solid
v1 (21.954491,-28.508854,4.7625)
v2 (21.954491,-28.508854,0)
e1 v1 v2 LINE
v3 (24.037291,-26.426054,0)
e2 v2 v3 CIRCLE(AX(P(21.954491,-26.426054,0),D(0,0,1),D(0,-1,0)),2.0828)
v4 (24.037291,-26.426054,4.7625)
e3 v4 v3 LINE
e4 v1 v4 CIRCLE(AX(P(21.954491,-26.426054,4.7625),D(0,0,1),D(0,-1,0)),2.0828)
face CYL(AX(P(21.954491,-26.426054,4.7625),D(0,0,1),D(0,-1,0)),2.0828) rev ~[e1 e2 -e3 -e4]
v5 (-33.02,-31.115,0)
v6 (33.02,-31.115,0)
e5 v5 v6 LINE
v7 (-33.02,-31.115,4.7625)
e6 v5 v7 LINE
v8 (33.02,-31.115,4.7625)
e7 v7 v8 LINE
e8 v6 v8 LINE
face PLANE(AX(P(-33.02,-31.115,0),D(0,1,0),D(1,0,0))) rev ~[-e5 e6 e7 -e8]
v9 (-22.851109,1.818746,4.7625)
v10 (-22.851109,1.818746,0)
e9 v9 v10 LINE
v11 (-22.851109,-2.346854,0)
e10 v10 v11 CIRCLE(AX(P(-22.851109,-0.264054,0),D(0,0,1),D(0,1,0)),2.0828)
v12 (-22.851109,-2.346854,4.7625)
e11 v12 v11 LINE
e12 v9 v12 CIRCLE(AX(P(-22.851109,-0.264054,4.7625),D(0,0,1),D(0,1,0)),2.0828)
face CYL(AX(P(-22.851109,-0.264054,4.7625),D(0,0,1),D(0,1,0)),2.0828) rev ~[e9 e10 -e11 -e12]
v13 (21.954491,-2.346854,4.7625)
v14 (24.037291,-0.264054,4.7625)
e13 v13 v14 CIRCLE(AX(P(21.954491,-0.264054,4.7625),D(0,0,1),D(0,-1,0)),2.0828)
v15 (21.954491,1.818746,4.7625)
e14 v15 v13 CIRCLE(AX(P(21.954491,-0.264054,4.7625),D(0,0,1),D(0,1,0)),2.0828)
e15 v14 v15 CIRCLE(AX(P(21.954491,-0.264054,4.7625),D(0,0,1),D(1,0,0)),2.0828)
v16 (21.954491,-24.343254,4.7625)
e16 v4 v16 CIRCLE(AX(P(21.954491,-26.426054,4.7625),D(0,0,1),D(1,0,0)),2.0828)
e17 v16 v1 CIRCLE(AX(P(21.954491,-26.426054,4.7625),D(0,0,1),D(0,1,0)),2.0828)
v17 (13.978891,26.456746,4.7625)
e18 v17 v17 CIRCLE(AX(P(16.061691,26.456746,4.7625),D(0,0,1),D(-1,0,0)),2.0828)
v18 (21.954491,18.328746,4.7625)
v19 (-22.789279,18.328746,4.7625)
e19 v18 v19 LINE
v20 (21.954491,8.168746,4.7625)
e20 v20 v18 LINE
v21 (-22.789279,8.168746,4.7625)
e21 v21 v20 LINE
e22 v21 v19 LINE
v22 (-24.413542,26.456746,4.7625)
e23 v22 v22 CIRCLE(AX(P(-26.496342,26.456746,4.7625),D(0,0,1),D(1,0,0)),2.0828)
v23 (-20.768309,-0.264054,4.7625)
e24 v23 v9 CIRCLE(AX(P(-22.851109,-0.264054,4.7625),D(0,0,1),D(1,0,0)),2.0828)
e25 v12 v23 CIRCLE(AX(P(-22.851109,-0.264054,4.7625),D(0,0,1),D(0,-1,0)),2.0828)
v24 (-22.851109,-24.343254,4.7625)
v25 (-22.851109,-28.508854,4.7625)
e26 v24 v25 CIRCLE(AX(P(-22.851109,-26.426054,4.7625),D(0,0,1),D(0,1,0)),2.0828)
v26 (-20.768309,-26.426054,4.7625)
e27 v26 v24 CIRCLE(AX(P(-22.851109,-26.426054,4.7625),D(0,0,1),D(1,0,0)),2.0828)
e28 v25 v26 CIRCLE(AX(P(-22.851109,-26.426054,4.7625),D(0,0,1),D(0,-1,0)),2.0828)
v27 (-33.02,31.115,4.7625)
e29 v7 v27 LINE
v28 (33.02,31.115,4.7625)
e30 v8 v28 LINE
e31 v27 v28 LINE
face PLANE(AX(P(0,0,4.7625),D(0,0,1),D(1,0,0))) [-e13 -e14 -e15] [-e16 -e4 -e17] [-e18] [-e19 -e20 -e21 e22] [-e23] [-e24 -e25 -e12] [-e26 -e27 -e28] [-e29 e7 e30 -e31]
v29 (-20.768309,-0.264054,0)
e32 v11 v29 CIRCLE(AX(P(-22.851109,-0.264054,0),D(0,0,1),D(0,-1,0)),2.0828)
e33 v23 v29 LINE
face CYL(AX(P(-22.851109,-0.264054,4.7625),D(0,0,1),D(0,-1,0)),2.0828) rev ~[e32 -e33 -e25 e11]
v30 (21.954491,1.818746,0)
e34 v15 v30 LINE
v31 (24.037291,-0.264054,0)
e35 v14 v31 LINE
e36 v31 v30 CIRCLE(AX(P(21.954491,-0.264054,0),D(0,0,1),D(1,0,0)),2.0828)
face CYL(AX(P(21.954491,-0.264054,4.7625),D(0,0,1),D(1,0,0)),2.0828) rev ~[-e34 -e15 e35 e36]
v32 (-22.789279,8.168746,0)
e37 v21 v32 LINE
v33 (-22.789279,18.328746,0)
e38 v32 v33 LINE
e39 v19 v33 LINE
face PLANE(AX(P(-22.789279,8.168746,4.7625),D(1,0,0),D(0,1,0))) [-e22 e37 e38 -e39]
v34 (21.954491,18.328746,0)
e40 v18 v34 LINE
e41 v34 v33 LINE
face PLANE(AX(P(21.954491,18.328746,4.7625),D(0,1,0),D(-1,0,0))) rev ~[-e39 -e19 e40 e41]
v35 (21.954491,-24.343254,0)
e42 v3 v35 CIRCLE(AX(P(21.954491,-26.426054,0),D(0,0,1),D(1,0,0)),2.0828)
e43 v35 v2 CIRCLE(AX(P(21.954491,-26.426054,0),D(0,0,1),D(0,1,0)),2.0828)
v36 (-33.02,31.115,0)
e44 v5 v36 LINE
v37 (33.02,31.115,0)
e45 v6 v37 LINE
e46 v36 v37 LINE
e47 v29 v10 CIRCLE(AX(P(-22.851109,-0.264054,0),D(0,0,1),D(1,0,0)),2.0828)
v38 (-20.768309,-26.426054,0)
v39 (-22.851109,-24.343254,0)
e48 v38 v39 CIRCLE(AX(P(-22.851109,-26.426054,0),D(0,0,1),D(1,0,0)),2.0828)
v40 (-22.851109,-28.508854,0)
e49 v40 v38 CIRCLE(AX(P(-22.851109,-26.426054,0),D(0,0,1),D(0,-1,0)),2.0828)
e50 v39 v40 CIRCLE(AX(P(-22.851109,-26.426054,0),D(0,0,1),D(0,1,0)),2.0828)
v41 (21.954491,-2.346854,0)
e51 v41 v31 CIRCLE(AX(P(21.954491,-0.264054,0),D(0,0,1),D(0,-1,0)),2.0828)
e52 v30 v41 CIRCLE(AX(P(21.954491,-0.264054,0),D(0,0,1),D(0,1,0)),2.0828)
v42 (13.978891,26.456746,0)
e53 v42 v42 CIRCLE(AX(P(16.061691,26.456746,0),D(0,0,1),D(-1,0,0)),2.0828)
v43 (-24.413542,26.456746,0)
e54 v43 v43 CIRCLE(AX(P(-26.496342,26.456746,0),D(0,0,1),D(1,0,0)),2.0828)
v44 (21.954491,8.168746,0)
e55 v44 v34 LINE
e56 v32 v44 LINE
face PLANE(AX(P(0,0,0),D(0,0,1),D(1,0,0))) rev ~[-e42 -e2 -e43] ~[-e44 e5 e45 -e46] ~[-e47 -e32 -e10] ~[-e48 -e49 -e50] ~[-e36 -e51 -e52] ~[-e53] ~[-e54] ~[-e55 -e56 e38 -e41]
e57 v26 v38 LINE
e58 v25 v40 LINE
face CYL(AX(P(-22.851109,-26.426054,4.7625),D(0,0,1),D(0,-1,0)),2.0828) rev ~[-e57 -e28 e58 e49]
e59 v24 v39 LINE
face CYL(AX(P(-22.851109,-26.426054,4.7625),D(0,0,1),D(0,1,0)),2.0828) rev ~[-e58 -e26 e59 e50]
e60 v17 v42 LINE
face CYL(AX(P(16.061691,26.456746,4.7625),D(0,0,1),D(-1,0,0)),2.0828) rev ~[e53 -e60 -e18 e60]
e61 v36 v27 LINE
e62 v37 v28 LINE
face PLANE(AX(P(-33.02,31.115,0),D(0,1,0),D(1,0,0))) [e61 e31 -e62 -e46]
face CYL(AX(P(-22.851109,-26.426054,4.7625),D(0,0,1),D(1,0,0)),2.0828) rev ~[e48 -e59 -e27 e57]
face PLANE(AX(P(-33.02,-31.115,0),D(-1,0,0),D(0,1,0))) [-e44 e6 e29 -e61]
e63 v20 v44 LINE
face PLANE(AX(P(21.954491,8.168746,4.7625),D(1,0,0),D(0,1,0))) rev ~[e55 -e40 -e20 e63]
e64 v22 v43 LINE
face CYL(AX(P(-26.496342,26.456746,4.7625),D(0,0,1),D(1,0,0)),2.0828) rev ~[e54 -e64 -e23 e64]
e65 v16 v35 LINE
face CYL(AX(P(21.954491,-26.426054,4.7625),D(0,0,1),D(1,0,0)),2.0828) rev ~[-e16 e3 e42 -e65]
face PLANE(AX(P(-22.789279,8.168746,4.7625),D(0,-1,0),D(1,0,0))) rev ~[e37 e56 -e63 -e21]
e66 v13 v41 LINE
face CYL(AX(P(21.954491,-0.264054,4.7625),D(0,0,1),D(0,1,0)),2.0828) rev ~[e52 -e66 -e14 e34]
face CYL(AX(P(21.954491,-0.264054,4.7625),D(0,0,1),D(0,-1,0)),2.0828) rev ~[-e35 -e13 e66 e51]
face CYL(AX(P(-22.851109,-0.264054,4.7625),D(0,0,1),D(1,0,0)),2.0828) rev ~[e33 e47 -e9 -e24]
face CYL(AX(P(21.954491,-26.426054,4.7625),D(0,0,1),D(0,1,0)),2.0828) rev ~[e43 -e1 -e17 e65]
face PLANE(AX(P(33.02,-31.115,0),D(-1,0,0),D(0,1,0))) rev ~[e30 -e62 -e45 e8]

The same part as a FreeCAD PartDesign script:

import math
import FreeCAD as App
import Part
import Sketcher
from FreeCAD import Vector
Q = App.Units.Quantity


def add_polygon(sketch, points):
    """Adds a closed chain of lines whose ends are joined by coincident constraints."""
    first, n = sketch.GeometryCount, len(points)
    for a, b in zip(points, points[1:] + points[:1]):
        sketch.addGeometry(Part.LineSegment(App.Vector(*a, 0), App.Vector(*b, 0)), False)
    for i in range(n):
        sketch.addConstraint(Sketcher.Constraint("Coincident", first + i, 2, first + (i + 1) % n, 1))

doc = App.newDocument("Part")
body = doc.addObject("PartDesign::Body", "Body")

sketch1 = body.newObject("Sketcher::SketchObject", "Sketch")
sketch1.AttachmentSupport = (doc.getObject("XY_Plane"), [""])
sketch1.MapMode = "FlatFace"
add_polygon(sketch1, [(-33, 31), (-33, -31), (33, -31), (33, 31)])
sketch1.addConstraint([
    Sketcher.Constraint("Vertical", 0),
    Sketcher.Constraint("Horizontal", 1),
    Sketcher.Constraint("Vertical", 2),
    Sketcher.Constraint("Horizontal", 3),
    Sketcher.Constraint("Symmetric", 0, 2, 2, 2, -1, 1),
    Sketcher.Constraint("DistanceX", 1, 1, 1, 2, Q("2.6 in")),
    Sketcher.Constraint("DistanceY", 0, 2, 0, 1, Q("2.45 in")),
])
pad1 = body.newObject("PartDesign::Pad", "Pad")
pad1.Profile = sketch1
pad1.Length = Q("0.1875 in")

sketch2 = body.newObject("Sketcher::SketchObject", "Sketch001")
sketch2.AttachmentSupport = (doc.getObject("XY_Plane"), [""])
sketch2.MapMode = "FlatFace"
sketch2.AttachmentOffset = App.Placement(Vector(0, 0, 0.1875 * 25.4), App.Rotation())
sketch2.addGeometry(Part.Circle(Vector(-26.5, 26.5, 0), Vector(0, 0, 1), 2.1), False)
sketch2.addGeometry(Part.Circle(Vector(16.1, 26.5, 0), Vector(0, 0, 1), 2.1), False)
sketch2.addGeometry(Part.ArcOfCircle(Part.Circle(Vector(22, -0.3, 0), Vector(0, 0, 1), 2.1), math.radians(0), math.radians(90)), False)
sketch2.addGeometry(Part.ArcOfCircle(Part.Circle(Vector(22, -0.3, 0), Vector(0, 0, 1), 2.1), math.radians(90), math.radians(270)), False)
sketch2.addGeometry(Part.ArcOfCircle(Part.Circle(Vector(22, -0.3, 0), Vector(0, 0, 1), 2.1), math.radians(-90), math.radians(0)), False)
sketch2.addGeometry(Part.ArcOfCircle(Part.Circle(Vector(-22.9, -0.3, 0), Vector(0, 0, 1), 2.1), math.radians(0), math.radians(90)), False)
sketch2.addGeometry(Part.ArcOfCircle(Part.Circle(Vector(-22.9, -0.3, 0), Vector(0, 0, 1), 2.1), math.radians(90), math.radians(270)), False)
sketch2.addGeometry(Part.ArcOfCircle(Part.Circle(Vector(-22.9, -0.3, 0), Vector(0, 0, 1), 2.1), math.radians(-90), math.radians(0)), False)
sketch2.addGeometry(Part.ArcOfCircle(Part.Circle(Vector(-22.9, -26.4, 0), Vector(0, 0, 1), 2.1), math.radians(-90), math.radians(0)), False)
sketch2.addGeometry(Part.ArcOfCircle(Part.Circle(Vector(-22.9, -26.4, 0), Vector(0, 0, 1), 2.1), math.radians(0), math.radians(90)), False)
sketch2.addGeometry(Part.ArcOfCircle(Part.Circle(Vector(-22.9, -26.4, 0), Vector(0, 0, 1), 2.1), math.radians(90), math.radians(270)), False)
sketch2.addGeometry(Part.ArcOfCircle(Part.Circle(Vector(22, -26.4, 0), Vector(0, 0, 1), 2.1), math.radians(-90), math.radians(0)), False)
sketch2.addGeometry(Part.ArcOfCircle(Part.Circle(Vector(22, -26.4, 0), Vector(0, 0, 1), 2.1), math.radians(0), math.radians(90)), False)
sketch2.addGeometry(Part.ArcOfCircle(Part.Circle(Vector(22, -26.4, 0), Vector(0, 0, 1), 2.1), math.radians(90), math.radians(270)), False)
add_polygon(sketch2, [(-22.8, 18.3), (-22.8, 8.2), (22, 8.2), (22, 18.3)])
sketch2.addConstraint([
    Sketcher.Constraint("Tangent", 2, 2, 3, 1),
    Sketcher.Constraint("Tangent", 3, 2, 4, 1),
    Sketcher.Constraint("Tangent", 4, 2, 2, 1),
    Sketcher.Constraint("Tangent", 5, 2, 6, 1),
    Sketcher.Constraint("Tangent", 6, 2, 7, 1),
    Sketcher.Constraint("Tangent", 7, 2, 5, 1),
    Sketcher.Constraint("Tangent", 8, 2, 9, 1),
    Sketcher.Constraint("Tangent", 9, 2, 10, 1),
    Sketcher.Constraint("Tangent", 10, 2, 8, 1),
    Sketcher.Constraint("Tangent", 11, 2, 12, 1),
    Sketcher.Constraint("Tangent", 12, 2, 13, 1),
    Sketcher.Constraint("Tangent", 13, 2, 11, 1),
    Sketcher.Constraint("Vertical", 14),
    Sketcher.Constraint("Horizontal", 15),
    Sketcher.Constraint("Vertical", 16),
    Sketcher.Constraint("Horizontal", 17),
    Sketcher.Constraint("Equal", 0, 1),
    Sketcher.Constraint("Equal", 1, 2),
    Sketcher.Constraint("Equal", 4, 5),
    Sketcher.Constraint("Equal", 7, 8),
    Sketcher.Constraint("Equal", 10, 11),
    Sketcher.Constraint("Horizontal", 0, 3, 1, 3),
    Sketcher.Constraint("Horizontal", 4, 3, 5, 3),
    Sketcher.Constraint("Horizontal", 10, 3, 11, 3),
    Sketcher.Constraint("Horizontal", 7, 3, 4, 2),
    Sketcher.Constraint("Horizontal", 4, 2, 7, 2),
    Sketcher.Constraint("Horizontal", 13, 3, 8, 2),
    Sketcher.Constraint("Horizontal", 8, 2, 11, 2),
    Sketcher.Constraint("Vertical", 7, 3, 8, 3),
    Sketcher.Constraint("Vertical", 4, 3, 11, 3),
    Sketcher.Constraint("Vertical", 13, 3, 2, 2),
    Sketcher.Constraint("Vertical", 2, 2, 3, 2),
    Sketcher.Constraint("Vertical", 10, 3, 5, 2),
    Sketcher.Constraint("Vertical", 5, 2, 6, 2),
    Sketcher.Constraint("Vertical", 6, 2, 9, 2),
    Sketcher.Constraint("Vertical", 9, 2, 10, 2),
    Sketcher.Constraint("Vertical", 3, 2, 12, 2),
    Sketcher.Constraint("Vertical", 12, 2, 13, 2),
    Sketcher.Constraint("Vertical", 13, 2, 15, 2),
    Sketcher.Constraint("Diameter", 0, Q("0.164 in")),
    Sketcher.Constraint("DistanceY", 14, 2, 14, 1, Q("0.4 in")),
    Sketcher.Constraint("DistanceY", 8, 3, 5, 3, Q("1.03 in")),
    Sketcher.Constraint("DistanceY", 2, 2, 1, 3, Q("0.97 in")),
    Sketcher.Constraint("DistanceY", 5, 2, 14, 2, Q("0.25 in")),
    Sketcher.Constraint("DistanceX", 1, 3, 2, 3, Q("0.232 in")),
    Sketcher.Constraint("DistanceX", 5, 3, 3, 3, Q("1.764 in")),
    Sketcher.Constraint("DistanceX", 15, 1, 15, 2, Q("44.74377 mm")),
    Sketcher.Constraint("DistanceX", 0, 3, -1, 1, Q("26.496342 mm")),
    Sketcher.Constraint("DistanceX", -1, 1, 1, 3, Q("16.061691 mm")),
    Sketcher.Constraint("DistanceY", -1, 1, 0, 3, Q("26.456746 mm")),
])
pocket1 = body.newObject("PartDesign::Pocket", "Pocket")
pocket1.Profile = sketch2
pocket1.Length = Q("1 in")

doc.recompute()
